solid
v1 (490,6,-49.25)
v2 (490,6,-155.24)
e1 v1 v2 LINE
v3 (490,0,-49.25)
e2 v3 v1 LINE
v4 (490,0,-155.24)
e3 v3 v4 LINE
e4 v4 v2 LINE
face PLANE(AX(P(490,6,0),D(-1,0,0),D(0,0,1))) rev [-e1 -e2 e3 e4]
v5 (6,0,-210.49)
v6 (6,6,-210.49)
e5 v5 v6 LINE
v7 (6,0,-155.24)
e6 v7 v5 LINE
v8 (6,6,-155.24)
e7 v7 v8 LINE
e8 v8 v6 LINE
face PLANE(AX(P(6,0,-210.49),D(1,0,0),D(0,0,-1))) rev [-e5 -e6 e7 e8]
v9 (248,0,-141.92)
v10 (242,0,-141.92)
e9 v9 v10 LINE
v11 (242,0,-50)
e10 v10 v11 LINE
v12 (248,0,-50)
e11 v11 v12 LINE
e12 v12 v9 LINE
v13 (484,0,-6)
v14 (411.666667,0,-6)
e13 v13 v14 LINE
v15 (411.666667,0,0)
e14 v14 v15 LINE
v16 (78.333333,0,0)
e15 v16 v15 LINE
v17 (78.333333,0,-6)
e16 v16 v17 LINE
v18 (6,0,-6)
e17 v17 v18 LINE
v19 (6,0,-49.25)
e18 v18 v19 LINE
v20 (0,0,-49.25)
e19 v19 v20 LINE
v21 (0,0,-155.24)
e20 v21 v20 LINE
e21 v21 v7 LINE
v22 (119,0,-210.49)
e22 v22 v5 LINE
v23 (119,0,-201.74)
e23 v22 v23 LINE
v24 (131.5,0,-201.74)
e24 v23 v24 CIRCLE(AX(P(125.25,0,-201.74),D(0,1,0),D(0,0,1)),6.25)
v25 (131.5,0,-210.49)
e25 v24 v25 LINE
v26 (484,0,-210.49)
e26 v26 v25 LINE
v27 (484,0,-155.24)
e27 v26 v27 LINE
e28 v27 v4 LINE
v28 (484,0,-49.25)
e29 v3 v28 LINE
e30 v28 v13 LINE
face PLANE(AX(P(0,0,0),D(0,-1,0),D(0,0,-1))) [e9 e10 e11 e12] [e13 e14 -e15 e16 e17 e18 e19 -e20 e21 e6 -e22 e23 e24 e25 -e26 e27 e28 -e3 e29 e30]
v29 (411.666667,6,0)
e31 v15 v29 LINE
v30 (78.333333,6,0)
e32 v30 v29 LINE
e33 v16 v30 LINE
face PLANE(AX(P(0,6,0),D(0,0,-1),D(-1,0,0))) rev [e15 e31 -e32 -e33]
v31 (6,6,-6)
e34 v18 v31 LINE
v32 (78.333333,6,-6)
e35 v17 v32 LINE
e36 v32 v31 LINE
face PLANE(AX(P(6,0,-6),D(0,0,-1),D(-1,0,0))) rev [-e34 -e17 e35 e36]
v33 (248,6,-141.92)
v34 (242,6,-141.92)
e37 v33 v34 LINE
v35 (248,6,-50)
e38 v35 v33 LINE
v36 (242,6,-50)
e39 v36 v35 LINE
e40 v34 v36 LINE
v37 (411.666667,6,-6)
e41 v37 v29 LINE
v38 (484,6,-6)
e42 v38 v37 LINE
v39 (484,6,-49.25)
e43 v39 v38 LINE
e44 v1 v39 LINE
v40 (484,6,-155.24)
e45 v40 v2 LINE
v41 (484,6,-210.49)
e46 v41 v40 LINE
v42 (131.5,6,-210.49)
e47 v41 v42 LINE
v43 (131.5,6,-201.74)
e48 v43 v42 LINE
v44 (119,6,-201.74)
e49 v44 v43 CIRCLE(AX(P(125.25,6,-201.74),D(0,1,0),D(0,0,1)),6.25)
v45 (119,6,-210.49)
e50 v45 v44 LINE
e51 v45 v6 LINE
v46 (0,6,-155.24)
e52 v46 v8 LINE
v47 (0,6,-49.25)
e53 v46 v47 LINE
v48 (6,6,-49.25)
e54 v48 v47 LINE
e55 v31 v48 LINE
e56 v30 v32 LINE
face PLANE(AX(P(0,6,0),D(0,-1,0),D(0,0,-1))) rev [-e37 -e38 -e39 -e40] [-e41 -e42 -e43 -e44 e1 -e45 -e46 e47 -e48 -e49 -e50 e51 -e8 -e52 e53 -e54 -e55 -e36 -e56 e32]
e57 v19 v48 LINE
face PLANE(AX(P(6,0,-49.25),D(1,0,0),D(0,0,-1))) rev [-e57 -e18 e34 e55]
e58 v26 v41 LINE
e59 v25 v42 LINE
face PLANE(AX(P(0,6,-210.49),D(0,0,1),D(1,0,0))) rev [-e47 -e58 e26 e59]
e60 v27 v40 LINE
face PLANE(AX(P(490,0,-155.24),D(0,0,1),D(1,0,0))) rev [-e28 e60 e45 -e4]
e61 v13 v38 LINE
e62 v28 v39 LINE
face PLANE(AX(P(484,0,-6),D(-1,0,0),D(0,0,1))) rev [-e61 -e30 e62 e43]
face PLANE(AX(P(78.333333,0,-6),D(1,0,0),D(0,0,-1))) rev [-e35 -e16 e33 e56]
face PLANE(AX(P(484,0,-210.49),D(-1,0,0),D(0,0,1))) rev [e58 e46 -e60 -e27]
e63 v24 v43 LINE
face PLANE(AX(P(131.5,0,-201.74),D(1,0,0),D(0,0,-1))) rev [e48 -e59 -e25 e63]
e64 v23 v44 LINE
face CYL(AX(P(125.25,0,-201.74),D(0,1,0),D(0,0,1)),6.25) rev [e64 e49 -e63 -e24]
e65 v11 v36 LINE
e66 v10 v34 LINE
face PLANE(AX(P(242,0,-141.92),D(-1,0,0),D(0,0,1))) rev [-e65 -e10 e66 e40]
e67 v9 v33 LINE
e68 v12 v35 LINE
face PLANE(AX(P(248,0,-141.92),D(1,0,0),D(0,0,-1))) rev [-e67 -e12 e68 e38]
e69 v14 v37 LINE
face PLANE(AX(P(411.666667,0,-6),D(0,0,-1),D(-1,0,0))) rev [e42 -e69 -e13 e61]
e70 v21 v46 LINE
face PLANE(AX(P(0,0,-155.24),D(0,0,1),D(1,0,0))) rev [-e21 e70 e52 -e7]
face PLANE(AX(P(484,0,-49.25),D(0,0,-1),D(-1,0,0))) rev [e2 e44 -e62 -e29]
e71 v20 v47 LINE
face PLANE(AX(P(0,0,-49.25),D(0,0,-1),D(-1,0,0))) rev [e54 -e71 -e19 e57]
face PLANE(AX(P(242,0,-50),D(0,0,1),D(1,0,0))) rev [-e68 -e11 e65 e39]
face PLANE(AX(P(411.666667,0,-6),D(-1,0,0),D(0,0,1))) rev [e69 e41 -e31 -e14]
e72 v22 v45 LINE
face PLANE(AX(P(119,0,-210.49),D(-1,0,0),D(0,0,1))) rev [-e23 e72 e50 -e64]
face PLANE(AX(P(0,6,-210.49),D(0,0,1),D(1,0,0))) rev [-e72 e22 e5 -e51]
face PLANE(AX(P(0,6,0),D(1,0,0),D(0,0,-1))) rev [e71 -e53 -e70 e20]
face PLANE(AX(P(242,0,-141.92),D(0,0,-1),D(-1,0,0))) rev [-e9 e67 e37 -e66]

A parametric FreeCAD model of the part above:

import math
import FreeCAD as App
import Part
import Sketcher


def add_polygon(sketch, points):
    """Adds a closed chain of lines whose ends are joined by coincident constraints."""
    first, n = sketch.GeometryCount, len(points)
    for a, b in zip(points, points[1:] + points[:1]):
        sketch.addGeometry(Part.LineSegment(App.Vector(*a, 0), App.Vector(*b, 0)), False)
    for i in range(n):
        sketch.addConstraint(Sketcher.Constraint("Coincident", first + i, 2, first + (i + 1) % n, 1))

doc = App.newDocument("Part")
params = doc.addObject("Spreadsheet::Sheet", "Params")
for row, (alias, value) in enumerate([
    ("sketch1_width", "490 mm"),
    ("sketch1_height", "210.49 mm"),
    ("pad1_length", "6 mm"),
    ("sketch2_width", "6 mm"),
    ("sketch2_height", "49.25 mm"),
    ("sketch2_height2", "55.25 mm"),
    ("sketch3_width", "6 mm"),
    ("sketch3_height", "91.92 mm"),
    ("sketch4_radius", "6.25 mm"),
    ("sketch4_height", "8.75 mm"),
], start=1):
    params.set(f"A{row}", alias)
    params.set(f"B{row}", "=" + value)
    params.setAlias(f"B{row}", alias)

body = doc.addObject("PartDesign::Body", "Body")

# Sketch on XZ plane
sketch1 = body.newObject("Sketcher::SketchObject", "Sketch")
sketch1.AttachmentSupport = (doc.getObject("XZ_Plane"), [""])
sketch1.MapMode = "FlatFace"
add_polygon(sketch1, [(0, -210.49), (0, 0), (490, 0), (490, -210.49)])  # lines 0-3
sketch1.addConstraint(Sketcher.Constraint("Vertical", 0))
sketch1.addConstraint(Sketcher.Constraint("Horizontal", 1))
sketch1.addConstraint(Sketcher.Constraint("Vertical", 2))
sketch1.addConstraint(Sketcher.Constraint("Horizontal", 3))
sketch1.addConstraint(Sketcher.Constraint("Coincident", 0, 2, -1, 1))
sketch1.addConstraint(Sketcher.Constraint("DistanceX", 1, 1, 1, 2, 490.0))
sketch1.addConstraint(Sketcher.Constraint("DistanceY", 0, 1, 0, 2, 210.49))
sketch1.setExpression("Constraints[9]", "Params.sketch1_width")
sketch1.setExpression("Constraints[10]", "Params.sketch1_height")
pad1 = body.newObject("PartDesign::Pad", "Pad")
pad1.Profile = sketch1
pad1.setExpression("Length", "Params.pad1_length")
pad1.Reversed = True

# Sketch on XZ plane
sketch2 = body.newObject("Sketcher::SketchObject", "Sketch001")
sketch2.AttachmentSupport = (doc.getObject("XZ_Plane"), [""])
sketch2.MapMode = "FlatFace"
sketch2.AttachmentOffset = App.Placement(App.Vector(0, 0, -6), App.Rotation())
add_polygon(sketch2, [(411.666667, -6), (411.666667, 0), (490, 0), (490, -49.25), (484, -49.25), (484, -6)])  # lines 0-5
add_polygon(sketch2, [(0, -49.25), (0, 0), (78.333333, 0), (78.333333, -6), (6, -6), (6, -49.25)])  # lines 6-11
add_polygon(sketch2, [(484, -210.49), (484, -155.24), (490, -155.24), (490, -210.49)])  # lines 12-15
add_polygon(sketch2, [(0, -210.49), (0, -155.24), (6, -155.24), (6, -210.49)])  # lines 16-19
sketch2.addConstraint(Sketcher.Constraint("Vertical", 0))
sketch2.addConstraint(Sketcher.Constraint("Horizontal", 1))
sketch2.addConstraint(Sketcher.Constraint("Vertical", 2))
sketch2.addConstraint(Sketcher.Constraint("Horizontal", 3))
sketch2.addConstraint(Sketcher.Constraint("Vertical", 4))
sketch2.addConstraint(Sketcher.Constraint("Horizontal", 5))
sketch2.addConstraint(Sketcher.Constraint("Vertical", 6))
sketch2.addConstraint(Sketcher.Constraint("Horizontal", 7))
sketch2.addConstraint(Sketcher.Constraint("Vertical", 8))
sketch2.addConstraint(Sketcher.Constraint("Horizontal", 9))
sketch2.addConstraint(Sketcher.Constraint("Vertical", 10))
sketch2.addConstraint(Sketcher.Constraint("Horizontal", 11))
sketch2.addConstraint(Sketcher.Constraint("Vertical", 12))
sketch2.addConstraint(Sketcher.Constraint("Horizontal", 13))
sketch2.addConstraint(Sketcher.Constraint("Vertical", 14))
sketch2.addConstraint(Sketcher.Constraint("Horizontal", 15))
sketch2.addConstraint(Sketcher.Constraint("Vertical", 16))
sketch2.addConstraint(Sketcher.Constraint("Horizontal", 17))
sketch2.addConstraint(Sketcher.Constraint("Vertical", 18))
sketch2.addConstraint(Sketcher.Constraint("Horizontal", 19))
sketch2.addConstraint(Sketcher.Constraint("Coincident", 6, 2, -1, 1))
sketch2.addConstraint(Sketcher.Constraint("PointOnObject", 0, 2, -1))
sketch2.addConstraint(Sketcher.Constraint("PointOnObject", 16, 2, -2))
sketch2.addConstraint(Sketcher.Constraint("Horizontal", 5, 2, 8, 2))
sketch2.addConstraint(Sketcher.Constraint("Horizontal", 3, 2, 10, 2))
sketch2.addConstraint(Sketcher.Constraint("Horizontal", 13, 2, 16, 2))
sketch2.addConstraint(Sketcher.Constraint("Horizontal", 15, 2, 18, 2))
sketch2.addConstraint(Sketcher.Constraint("Vertical", 4, 2, 12, 2))
sketch2.addConstraint(Sketcher.Constraint("Vertical", 2, 2, 13, 2))
sketch2.addConstraint(Sketcher.Constraint("Vertical", 10, 2, 17, 2))
sketch2.addConstraint(Sketcher.Constraint("Equal", 1, 7))
sketch2.addConstraint(Sketcher.Constraint("Equal", 5, 9))
sketch2.addConstraint(Sketcher.Constraint("Equal", 19, 0))
sketch2.addConstraint(Sketcher.Constraint("DistanceX", 3, 2, 3, 1, 6.0))
sketch2.addConstraint(Sketcher.Constraint("DistanceX", -1, 1, 1, 2, 490.0))
sketch2.addConstraint(Sketcher.Constraint("DistanceY", 2, 2, 2, 1, 49.25))
sketch2.addConstraint(Sketcher.Constraint("DistanceY", 12, 1, 12, 2, 55.25))
sketch2.addConstraint(Sketcher.Constraint("DistanceY", 12, 2, -1, 1, 155.24))
sketch2.addConstraint(Sketcher.Constraint("DistanceX", 1, 1, 1, 2, 78.333333))
sketch2.setExpression("Constraints[53]", "Params.sketch2_width")
sketch2.setExpression("Constraints[55]", "Params.sketch2_height")
sketch2.setExpression("Constraints[56]", "Params.sketch2_height2")
pocket1 = body.newObject("PartDesign::Pocket", "Pocket")
pocket1.Profile = sketch2
pocket1.Type = "ThroughAll"
pocket1.Reversed = True

# Sketch on XZ plane
sketch3 = body.newObject("Sketcher::SketchObject", "Sketch002")
sketch3.AttachmentSupport = (doc.getObject("XZ_Plane"), [""])
sketch3.MapMode = "FlatFace"
sketch3.AttachmentOffset = App.Placement(App.Vector(0, 0, -6), App.Rotation())
add_polygon(sketch3, [(242, -141.92), (242, -50), (248, -50), (248, -141.92)])  # lines 0-3
sketch3.addConstraint(Sketcher.Constraint("Vertical", 0))
sketch3.addConstraint(Sketcher.Constraint("Horizontal", 1))
sketch3.addConstraint(Sketcher.Constraint("Vertical", 2))
sketch3.addConstraint(Sketcher.Constraint("Horizontal", 3))
sketch3.addConstraint(Sketcher.Constraint("DistanceX", 1, 1, 1, 2, 6.0))
sketch3.addConstraint(Sketcher.Constraint("DistanceX", -1, 1, 0, 2, 242.0))
sketch3.addConstraint(Sketcher.Constraint("DistanceY", 0, 2, -1, 1, 50.0))
sketch3.addConstraint(Sketcher.Constraint("DistanceY", 0, 1, 0, 2, 91.92))
sketch3.setExpression("Constraints[8]", "Params.sketch3_width")
sketch3.setExpression("Constraints[11]", "Params.sketch3_height")
pocket2 = body.newObject("PartDesign::Pocket", "Pocket001")
pocket2.Profile = sketch3
pocket2.Type = "ThroughAll"
pocket2.Reversed = True

# Sketch on XZ plane
sketch4 = body.newObject("Sketcher::SketchObject", "Sketch003")
sketch4.AttachmentSupport = (doc.getObject("XZ_Plane"), [""])
sketch4.MapMode = "FlatFace"
sketch4.AttachmentOffset = App.Placement(App.Vector(0, 0, -6), App.Rotation())
sketch4.addGeometry(Part.LineSegment(App.Vector(119, -210.49, 0), App.Vector(119, -201.74, 0)), False)
sketch4.addGeometry(Part.ArcOfCircle(Part.Circle(App.Vector(125.25, -201.74, 0), App.Vector(0, 0, 1), 6.25), math.radians(0), math.radians(180)), False)
sketch4.addGeometry(Part.LineSegment(App.Vector(131.5, -201.74, 0), App.Vector(131.5, -210.49, 0)), False)
sketch4.addGeometry(Part.LineSegment(App.Vector(131.5, -210.49, 0), App.Vector(119, -210.49, 0)), False)
sketch4.addConstraint(Sketcher.Constraint("Tangent", 0, 2, 1, 2))
sketch4.addConstraint(Sketcher.Constraint("Tangent", 1, 1, 2, 1))
sketch4.addConstraint(Sketcher.Constraint("Coincident", 2, 2, 3, 1))
sketch4.addConstraint(Sketcher.Constraint("Coincident", 3, 2, 0, 1))
sketch4.addConstraint(Sketcher.Constraint("Vertical", 0))
sketch4.addConstraint(Sketcher.Constraint("Vertical", 2))
sketch4.addConstraint(Sketcher.Constraint("Horizontal", 3))
sketch4.addConstraint(Sketcher.Constraint("Radius", 1, 6.25))
sketch4.addConstraint(Sketcher.Constraint("DistanceX", -1, 1, 0, 2, 119.0))
sketch4.addConstraint(Sketcher.Constraint("DistanceY", 0, 1, 0, 2, 8.75))
sketch4.addConstraint(Sketcher.Constraint("DistanceY", 1, 3, -1, 1, 201.74))
sketch4.setExpression("Constraints[7]", "Params.sketch4_radius")
sketch4.setExpression("Constraints[9]", "Params.sketch4_height")
pocket3 = body.newObject("PartDesign::Pocket", "Pocket002")
pocket3.Profile = sketch4
pocket3.Type = "ThroughAll"
pocket3.Reversed = True

doc.recompute()
